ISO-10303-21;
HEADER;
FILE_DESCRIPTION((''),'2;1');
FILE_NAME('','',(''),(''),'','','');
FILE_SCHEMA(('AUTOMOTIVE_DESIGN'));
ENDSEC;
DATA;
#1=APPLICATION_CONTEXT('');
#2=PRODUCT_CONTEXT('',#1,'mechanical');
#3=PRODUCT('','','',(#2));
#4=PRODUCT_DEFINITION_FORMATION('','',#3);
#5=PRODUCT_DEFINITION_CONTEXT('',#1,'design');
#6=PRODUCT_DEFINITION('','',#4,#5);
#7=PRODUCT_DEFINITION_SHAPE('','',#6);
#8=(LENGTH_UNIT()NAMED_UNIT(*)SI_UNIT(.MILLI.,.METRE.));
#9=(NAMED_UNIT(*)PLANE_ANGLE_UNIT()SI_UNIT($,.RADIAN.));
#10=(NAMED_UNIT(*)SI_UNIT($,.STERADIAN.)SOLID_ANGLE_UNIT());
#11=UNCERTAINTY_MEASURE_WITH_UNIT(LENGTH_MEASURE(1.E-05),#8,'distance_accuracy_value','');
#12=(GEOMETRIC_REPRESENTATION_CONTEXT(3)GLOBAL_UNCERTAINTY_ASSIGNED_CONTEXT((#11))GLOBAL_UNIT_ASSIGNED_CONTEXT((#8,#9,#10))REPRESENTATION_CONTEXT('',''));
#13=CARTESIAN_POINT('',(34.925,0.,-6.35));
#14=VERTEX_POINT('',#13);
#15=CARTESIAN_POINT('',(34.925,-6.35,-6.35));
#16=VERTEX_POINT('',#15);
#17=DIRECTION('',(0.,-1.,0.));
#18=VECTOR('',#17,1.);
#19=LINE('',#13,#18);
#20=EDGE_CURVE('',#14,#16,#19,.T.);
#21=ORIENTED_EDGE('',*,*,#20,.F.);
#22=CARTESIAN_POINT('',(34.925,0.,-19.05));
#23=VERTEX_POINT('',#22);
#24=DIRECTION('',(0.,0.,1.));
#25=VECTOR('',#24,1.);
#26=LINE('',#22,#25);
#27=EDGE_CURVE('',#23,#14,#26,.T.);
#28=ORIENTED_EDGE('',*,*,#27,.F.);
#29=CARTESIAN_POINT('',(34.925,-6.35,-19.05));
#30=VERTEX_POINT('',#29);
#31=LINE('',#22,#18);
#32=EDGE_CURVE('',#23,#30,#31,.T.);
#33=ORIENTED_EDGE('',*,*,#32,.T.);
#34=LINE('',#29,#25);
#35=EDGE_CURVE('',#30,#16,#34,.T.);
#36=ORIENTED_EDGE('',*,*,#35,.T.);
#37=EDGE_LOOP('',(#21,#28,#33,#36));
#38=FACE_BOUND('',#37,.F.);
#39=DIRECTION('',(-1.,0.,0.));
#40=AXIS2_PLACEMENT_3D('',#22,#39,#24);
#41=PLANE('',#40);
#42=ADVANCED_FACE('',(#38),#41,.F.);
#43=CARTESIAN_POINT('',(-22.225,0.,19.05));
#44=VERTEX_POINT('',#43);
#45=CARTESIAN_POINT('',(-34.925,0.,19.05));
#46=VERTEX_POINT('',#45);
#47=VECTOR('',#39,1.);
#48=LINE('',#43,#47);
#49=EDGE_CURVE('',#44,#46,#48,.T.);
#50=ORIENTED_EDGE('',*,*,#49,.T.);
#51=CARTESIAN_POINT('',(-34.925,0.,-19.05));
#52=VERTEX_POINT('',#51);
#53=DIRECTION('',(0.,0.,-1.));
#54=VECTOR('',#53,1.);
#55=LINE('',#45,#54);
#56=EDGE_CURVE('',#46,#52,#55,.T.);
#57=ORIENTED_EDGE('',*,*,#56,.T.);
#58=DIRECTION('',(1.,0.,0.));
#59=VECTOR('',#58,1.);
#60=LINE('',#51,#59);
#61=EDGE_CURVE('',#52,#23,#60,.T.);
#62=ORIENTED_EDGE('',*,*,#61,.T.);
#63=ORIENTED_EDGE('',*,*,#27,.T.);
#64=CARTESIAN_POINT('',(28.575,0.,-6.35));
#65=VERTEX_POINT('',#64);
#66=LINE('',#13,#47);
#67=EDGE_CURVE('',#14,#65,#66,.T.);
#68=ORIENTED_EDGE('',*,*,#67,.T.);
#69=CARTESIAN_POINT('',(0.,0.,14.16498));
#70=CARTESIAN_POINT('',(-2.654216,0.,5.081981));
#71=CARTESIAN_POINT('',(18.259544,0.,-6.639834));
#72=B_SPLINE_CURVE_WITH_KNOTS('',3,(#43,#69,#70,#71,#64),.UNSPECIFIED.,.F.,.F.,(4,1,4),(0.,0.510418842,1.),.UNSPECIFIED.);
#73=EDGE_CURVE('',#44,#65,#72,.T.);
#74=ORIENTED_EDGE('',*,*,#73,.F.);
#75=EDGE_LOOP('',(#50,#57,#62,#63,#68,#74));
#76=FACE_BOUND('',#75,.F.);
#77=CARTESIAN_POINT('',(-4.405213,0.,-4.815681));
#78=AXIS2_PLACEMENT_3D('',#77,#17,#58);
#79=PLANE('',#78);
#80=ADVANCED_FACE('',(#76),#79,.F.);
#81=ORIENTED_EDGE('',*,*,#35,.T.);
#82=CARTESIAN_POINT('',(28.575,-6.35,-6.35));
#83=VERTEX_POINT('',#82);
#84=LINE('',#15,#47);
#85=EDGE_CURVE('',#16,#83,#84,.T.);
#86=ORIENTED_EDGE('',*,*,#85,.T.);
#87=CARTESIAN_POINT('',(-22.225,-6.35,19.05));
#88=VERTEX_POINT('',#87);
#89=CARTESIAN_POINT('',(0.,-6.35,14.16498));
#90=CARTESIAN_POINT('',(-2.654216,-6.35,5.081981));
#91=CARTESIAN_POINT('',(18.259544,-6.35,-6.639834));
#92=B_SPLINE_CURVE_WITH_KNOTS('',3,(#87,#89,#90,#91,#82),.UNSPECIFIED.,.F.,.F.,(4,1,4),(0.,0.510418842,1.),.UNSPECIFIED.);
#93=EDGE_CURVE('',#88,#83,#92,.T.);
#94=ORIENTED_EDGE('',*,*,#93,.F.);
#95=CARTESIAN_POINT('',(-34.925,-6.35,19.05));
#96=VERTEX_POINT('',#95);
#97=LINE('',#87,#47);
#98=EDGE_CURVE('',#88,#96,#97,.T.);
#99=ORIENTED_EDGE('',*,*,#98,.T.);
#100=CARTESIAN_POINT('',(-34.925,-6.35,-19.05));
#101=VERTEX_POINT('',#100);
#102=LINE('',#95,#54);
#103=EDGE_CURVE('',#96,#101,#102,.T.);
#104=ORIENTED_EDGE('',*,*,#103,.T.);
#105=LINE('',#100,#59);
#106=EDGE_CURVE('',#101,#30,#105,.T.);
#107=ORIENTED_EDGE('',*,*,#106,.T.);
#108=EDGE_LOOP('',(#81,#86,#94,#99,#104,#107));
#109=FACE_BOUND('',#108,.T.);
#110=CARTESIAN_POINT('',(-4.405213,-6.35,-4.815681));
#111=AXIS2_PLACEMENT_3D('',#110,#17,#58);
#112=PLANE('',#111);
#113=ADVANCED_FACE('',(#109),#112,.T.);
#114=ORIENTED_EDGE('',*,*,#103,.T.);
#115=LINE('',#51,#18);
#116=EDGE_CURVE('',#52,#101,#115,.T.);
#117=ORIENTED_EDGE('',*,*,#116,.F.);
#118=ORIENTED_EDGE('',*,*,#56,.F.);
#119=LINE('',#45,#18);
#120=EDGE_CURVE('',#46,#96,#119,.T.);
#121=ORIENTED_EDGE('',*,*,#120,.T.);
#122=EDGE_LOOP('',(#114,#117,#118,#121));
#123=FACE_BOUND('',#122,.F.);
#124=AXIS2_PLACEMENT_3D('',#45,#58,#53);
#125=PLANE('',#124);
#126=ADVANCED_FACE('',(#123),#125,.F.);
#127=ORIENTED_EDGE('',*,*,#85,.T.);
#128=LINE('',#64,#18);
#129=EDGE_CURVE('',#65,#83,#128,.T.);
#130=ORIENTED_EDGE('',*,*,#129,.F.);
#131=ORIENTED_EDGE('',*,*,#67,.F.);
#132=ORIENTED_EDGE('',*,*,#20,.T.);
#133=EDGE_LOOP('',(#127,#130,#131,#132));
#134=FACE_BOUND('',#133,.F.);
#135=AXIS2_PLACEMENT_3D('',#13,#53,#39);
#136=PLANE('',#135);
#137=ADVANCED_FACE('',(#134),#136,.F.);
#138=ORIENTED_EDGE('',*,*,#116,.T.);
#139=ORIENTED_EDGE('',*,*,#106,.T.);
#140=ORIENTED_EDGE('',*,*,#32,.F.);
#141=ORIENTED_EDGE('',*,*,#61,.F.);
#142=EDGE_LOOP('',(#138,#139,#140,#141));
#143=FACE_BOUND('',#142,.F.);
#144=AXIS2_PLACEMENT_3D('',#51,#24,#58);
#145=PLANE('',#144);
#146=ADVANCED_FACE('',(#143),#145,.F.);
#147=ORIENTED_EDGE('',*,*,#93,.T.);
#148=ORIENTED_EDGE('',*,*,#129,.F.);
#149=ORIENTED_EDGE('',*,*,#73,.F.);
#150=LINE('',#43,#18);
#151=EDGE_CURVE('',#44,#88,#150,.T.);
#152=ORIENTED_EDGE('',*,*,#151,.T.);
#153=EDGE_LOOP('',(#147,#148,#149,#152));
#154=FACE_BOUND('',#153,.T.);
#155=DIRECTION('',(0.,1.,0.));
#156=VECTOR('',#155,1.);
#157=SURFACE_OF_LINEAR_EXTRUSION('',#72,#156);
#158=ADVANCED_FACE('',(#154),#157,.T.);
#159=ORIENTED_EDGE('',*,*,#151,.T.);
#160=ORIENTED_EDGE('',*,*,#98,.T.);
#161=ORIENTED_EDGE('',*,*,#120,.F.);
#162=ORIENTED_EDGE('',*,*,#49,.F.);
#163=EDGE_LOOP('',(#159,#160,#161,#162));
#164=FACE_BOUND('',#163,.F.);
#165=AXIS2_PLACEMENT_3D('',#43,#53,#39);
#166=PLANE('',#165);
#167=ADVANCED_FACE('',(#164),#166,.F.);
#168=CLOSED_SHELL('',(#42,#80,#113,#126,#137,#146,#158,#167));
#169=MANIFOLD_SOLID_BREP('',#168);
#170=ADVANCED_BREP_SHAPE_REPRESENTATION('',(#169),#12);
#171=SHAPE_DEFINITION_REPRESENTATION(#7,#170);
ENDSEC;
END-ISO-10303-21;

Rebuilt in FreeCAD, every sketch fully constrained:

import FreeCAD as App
import Part
import Sketcher
from FreeCAD import Vector
Q = App.Units.Quantity

doc = App.newDocument("Part")
body = doc.addObject("PartDesign::Body", "Body")

# Sketch on XZ plane
sketch1 = body.newObject("Sketcher::SketchObject", "Sketch")
sketch1.AttachmentSupport = (doc.getObject("XZ_Plane"), [""])
sketch1.MapMode = "FlatFace"
sketch1.addGeometry(Part.LineSegment(Vector(-22.225, 19.05, 0), Vector(-34.925, 19.05, 0)), False)
sketch1.addGeometry(Part.LineSegment(Vector(-34.925, 19.05, 0), Vector(-34.925, -19.05, 0)), False)
sketch1.addGeometry(Part.LineSegment(Vector(-34.925, -19.05, 0), Vector(34.925, -19.05, 0)), False)
sketch1.addGeometry(Part.LineSegment(Vector(34.925, -19.05, 0), Vector(34.925, -6.35, 0)), False)
sketch1.addGeometry(Part.LineSegment(Vector(34.925, -6.35, 0), Vector(28.575, -6.35, 0)), False)
sketch1.addGeometry(Part.BSplineCurve([Vector(-22.225, 19.05, 0), Vector(0, 14.16498, 0), Vector(-2.654216, 5.081981, 0), Vector(18.259544, -6.639834, 0), Vector(28.575, -6.35, 0)], [4, 1, 4], [0, 0.510418842, 1], False, 3, [1, 1, 1, 1, 1], False), False)
sketch1.addConstraint(Sketcher.Constraint("Block", 5))
sketch1.addConstraint(Sketcher.Constraint("Coincident", 0, 2, 1, 1))
sketch1.addConstraint(Sketcher.Constraint("Coincident", 1, 2, 2, 1))
sketch1.addConstraint(Sketcher.Constraint("Coincident", 2, 2, 3, 1))
sketch1.addConstraint(Sketcher.Constraint("Coincident", 3, 2, 4, 1))
sketch1.addConstraint(Sketcher.Constraint("Coincident", 4, 2, 5, 2))
sketch1.addConstraint(Sketcher.Constraint("Coincident", 5, 1, 0, 1))
sketch1.addConstraint(Sketcher.Constraint("Horizontal", 0))
sketch1.addConstraint(Sketcher.Constraint("Vertical", 1))
sketch1.addConstraint(Sketcher.Constraint("Horizontal", 2))
sketch1.addConstraint(Sketcher.Constraint("Vertical", 3))
sketch1.addConstraint(Sketcher.Constraint("Horizontal", 4))
sketch1.addConstraint(Sketcher.Constraint("DistanceX", 0, 2, 0, 1, Q("0.5 in")))
sketch1.addConstraint(Sketcher.Constraint("DistanceY", 1, 2, 1, 1, Q("1.5 in")))
sketch1.addConstraint(Sketcher.Constraint("DistanceX", 2, 1, 2, 2, Q("2.75 in")))
pad1 = body.newObject("PartDesign::Pad", "Pad")
pad1.Profile = sketch1
pad1.Length = Q("0.25 in")

doc.recompute()
